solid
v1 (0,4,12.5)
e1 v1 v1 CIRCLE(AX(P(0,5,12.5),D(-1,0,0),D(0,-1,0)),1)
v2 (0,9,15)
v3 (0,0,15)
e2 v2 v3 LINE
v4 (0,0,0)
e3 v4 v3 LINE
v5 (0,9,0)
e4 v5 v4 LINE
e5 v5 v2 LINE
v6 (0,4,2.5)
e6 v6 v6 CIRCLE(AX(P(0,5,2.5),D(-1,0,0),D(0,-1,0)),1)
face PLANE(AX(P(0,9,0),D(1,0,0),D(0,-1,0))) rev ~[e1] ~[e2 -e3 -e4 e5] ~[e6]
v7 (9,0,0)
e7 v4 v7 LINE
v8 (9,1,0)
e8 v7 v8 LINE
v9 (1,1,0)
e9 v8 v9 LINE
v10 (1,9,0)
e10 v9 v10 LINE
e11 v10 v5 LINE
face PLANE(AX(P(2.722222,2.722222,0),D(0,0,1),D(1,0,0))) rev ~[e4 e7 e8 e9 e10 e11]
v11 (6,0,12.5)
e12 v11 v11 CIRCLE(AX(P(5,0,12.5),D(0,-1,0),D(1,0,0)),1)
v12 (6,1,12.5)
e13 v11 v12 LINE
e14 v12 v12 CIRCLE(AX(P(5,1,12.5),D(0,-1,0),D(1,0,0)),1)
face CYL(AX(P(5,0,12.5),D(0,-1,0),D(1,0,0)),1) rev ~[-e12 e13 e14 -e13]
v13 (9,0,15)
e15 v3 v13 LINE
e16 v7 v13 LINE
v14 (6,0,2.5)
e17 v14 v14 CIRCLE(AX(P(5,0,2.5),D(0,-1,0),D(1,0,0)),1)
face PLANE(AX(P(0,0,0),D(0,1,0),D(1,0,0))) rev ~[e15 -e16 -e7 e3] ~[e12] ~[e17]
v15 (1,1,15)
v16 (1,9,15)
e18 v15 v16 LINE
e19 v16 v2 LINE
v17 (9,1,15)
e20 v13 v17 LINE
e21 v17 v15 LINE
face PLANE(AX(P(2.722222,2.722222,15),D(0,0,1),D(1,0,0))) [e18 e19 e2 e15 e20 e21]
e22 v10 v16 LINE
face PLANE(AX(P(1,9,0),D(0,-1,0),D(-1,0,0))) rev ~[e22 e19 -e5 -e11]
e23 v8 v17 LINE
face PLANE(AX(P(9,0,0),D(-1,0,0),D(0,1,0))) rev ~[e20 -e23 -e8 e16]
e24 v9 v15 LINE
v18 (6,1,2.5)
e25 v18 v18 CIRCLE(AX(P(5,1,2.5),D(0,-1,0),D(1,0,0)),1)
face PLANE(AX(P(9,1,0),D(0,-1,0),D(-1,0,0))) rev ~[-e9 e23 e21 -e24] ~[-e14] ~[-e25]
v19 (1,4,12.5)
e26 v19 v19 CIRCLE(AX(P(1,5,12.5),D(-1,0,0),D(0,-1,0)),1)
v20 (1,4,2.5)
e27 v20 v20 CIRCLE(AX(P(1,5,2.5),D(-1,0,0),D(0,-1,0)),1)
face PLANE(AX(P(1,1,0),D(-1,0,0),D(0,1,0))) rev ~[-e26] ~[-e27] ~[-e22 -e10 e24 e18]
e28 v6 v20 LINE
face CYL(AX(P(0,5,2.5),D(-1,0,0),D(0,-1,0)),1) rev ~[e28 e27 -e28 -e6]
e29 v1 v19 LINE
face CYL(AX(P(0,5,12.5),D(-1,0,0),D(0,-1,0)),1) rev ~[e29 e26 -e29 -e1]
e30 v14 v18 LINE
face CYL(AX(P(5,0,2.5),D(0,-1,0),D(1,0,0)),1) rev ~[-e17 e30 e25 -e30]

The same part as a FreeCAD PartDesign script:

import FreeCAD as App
import Part
import Sketcher

V = App.Vector
Q = App.Units.Quantity


def add_polygon(sketch, points):
    """Adds a closed chain of lines whose ends are joined by coincident constraints."""
    first, n = sketch.GeometryCount, len(points)
    for a, b in zip(points, points[1:] + points[:1]):
        sketch.addGeometry(Part.LineSegment(App.Vector(*a, 0), App.Vector(*b, 0)), False)
    for i in range(n):
        sketch.addConstraint(Sketcher.Constraint("Coincident", first + i, 2, first + (i + 1) % n, 1))

doc = App.newDocument("Part")
body = doc.addObject("PartDesign::Body", "Body")

# Sketch on XY plane
sketch1 = body.newObject("Sketcher::SketchObject", "Sketch")
sketch1.AttachmentSupport = (doc.getObject("XY_Plane"), [""])
sketch1.MapMode = "FlatFace"
add_polygon(sketch1, [(0, 9), (0, 0), (9, 0), (9, 1), (1, 1), (1, 9)])  # lines 0-5
sketch1.addConstraint(Sketcher.Constraint("Vertical", 0))
sketch1.addConstraint(Sketcher.Constraint("Horizontal", 1))
sketch1.addConstraint(Sketcher.Constraint("Vertical", 2))
sketch1.addConstraint(Sketcher.Constraint("Horizontal", 3))
sketch1.addConstraint(Sketcher.Constraint("Vertical", 4))
sketch1.addConstraint(Sketcher.Constraint("Horizontal", 5))
sketch1.addConstraint(Sketcher.Constraint("Coincident", 0, 2, -1, 1))
sketch1.addConstraint(Sketcher.Constraint("Equal", 1, 0))
sketch1.addConstraint(Sketcher.Constraint("Equal", 5, 2))
sketch1.addConstraint(Sketcher.Constraint("DistanceX", 1, 1, 1, 2, Q("9 mm")))
sketch1.addConstraint(Sketcher.Constraint("DistanceX", 3, 2, 3, 1, Q("8 mm")))
pad1 = body.newObject("PartDesign::Pad", "Pad")
pad1.Profile = sketch1
pad1.Length = 15

# Sketch on XZ plane
sketch2 = body.newObject("Sketcher::SketchObject", "Sketch001")
sketch2.AttachmentSupport = (doc.getObject("XZ_Plane"), [""])
sketch2.MapMode = "FlatFace"
sketch2.addGeometry(Part.Circle(V(5, 12.5, 0), V(0, 0, 1), 1), False)
sketch2.addGeometry(Part.Circle(V(5, 2.5, 0), V(0, 0, 1), 1), False)
sketch2.addConstraint(Sketcher.Constraint("Equal", 0, 1))
sketch2.addConstraint(Sketcher.Constraint("Vertical", 0, 3, 1, 3))
sketch2.addConstraint(Sketcher.Constraint("Diameter", 0, Q("2 mm")))
sketch2.addConstraint(Sketcher.Constraint("DistanceX", -1, 1, 0, 3, Q("5 mm")))
sketch2.addConstraint(Sketcher.Constraint("DistanceY", 1, 3, 0, 3, Q("10 mm")))
sketch2.addConstraint(Sketcher.Constraint("DistanceY", -1, 1, 0, 3, Q("12.5 mm")))
pocket1 = body.newObject("PartDesign::Pocket", "Pocket")
pocket1.Profile = sketch2
pocket1.Type = "ThroughAll"

# Sketch on YZ plane
sketch3 = body.newObject("Sketcher::SketchObject", "Sketch002")
sketch3.AttachmentSupport = (doc.getObject("YZ_Plane"), [""])
sketch3.MapMode = "FlatFace"
sketch3.addGeometry(Part.Circle(V(5, 12.5, 0), V(0, 0, 1), 1), False)
sketch3.addGeometry(Part.Circle(V(5, 2.5, 0), V(0, 0, 1), 1), False)
sketch3.addConstraint(Sketcher.Constraint("Equal", 0, 1))
sketch3.addConstraint(Sketcher.Constraint("Vertical", 0, 3, 1, 3))
sketch3.addConstraint(Sketcher.Constraint("Diameter", 0, Q("2 mm")))
sketch3.addConstraint(Sketcher.Constraint("DistanceX", -1, 1, 0, 3, Q("5 mm")))
sketch3.addConstraint(Sketcher.Constraint("DistanceY", 1, 3, 0, 3, Q("10 mm")))
sketch3.addConstraint(Sketcher.Constraint("DistanceY", -1, 1, 0, 3, Q("12.5 mm")))
pocket2 = body.newObject("PartDesign::Pocket", "Pocket001")
pocket2.Profile = sketch3
pocket2.Type = "ThroughAll"
pocket2.Reversed = True

doc.recompute()
